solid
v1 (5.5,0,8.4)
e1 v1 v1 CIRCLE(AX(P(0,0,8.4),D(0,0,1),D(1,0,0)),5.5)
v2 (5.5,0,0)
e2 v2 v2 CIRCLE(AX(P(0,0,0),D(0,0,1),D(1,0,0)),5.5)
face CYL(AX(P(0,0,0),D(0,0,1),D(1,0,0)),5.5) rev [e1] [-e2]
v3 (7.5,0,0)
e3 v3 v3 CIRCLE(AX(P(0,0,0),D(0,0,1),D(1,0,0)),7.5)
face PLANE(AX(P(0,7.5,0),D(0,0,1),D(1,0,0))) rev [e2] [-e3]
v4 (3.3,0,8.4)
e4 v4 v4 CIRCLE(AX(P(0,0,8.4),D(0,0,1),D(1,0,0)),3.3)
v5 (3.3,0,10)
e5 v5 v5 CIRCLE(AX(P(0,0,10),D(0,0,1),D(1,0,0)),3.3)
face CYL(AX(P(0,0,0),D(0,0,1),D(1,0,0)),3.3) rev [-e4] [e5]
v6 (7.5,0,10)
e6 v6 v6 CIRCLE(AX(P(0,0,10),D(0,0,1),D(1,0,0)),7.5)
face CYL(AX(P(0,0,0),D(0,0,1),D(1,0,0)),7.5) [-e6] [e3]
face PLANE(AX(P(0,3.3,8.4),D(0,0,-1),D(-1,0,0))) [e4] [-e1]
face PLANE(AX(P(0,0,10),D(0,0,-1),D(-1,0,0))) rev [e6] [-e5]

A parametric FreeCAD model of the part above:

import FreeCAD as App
import Part
import Sketcher
Q = App.Units.Quantity


def add_polygon(sketch, points):
    """Adds a closed chain of lines whose ends are joined by coincident constraints."""
    first, n = sketch.GeometryCount, len(points)
    for a, b in zip(points, points[1:] + points[:1]):
        sketch.addGeometry(Part.LineSegment(App.Vector(*a, 0), App.Vector(*b, 0)), False)
    for i in range(n):
        sketch.addConstraint(Sketcher.Constraint("Coincident", first + i, 2, first + (i + 1) % n, 1))

doc = App.newDocument("Part")
body = doc.addObject("PartDesign::Body", "Body")

sketch1 = body.newObject("Sketcher::SketchObject", "Sketch")
sketch1.AttachmentSupport = (doc.getObject("YZ_Plane"), [""])
sketch1.MapMode = "FlatFace"
add_polygon(sketch1, [(8, 10), (0, 10), (0, 0), (8, 0)])
sketch1.addConstraint([
    Sketcher.Constraint("Horizontal", 0),
    Sketcher.Constraint("Vertical", 1),
    Sketcher.Constraint("Horizontal", 2),
    Sketcher.Constraint("Vertical", 3),
    Sketcher.Constraint("Coincident", 1, 2, -1, 1),
    Sketcher.Constraint("DistanceY", 1, 2, 1, 1, Q("10 mm")),
    Sketcher.Constraint("DistanceX", 0, 2, 0, 1, Q("7.5 mm")),
])
revolution = body.newObject("PartDesign::Revolution", "Revolution")
revolution.Profile = sketch1
revolution.ReferenceAxis = (sketch1, ["V_Axis"])
revolution.Angle = 360

sketch2 = body.newObject("Sketcher::SketchObject", "Sketch001")
sketch2.AttachmentSupport = (doc.getObject("YZ_Plane"), [""])
sketch2.MapMode = "FlatFace"
add_polygon(sketch2, [(3.3, 10), (0, 10), (0, 0), (5.5, 0), (5.5, 8.4), (3.3, 8.4)])
sketch2.addConstraint([
    Sketcher.Constraint("Horizontal", 0),
    Sketcher.Constraint("Vertical", 1),
    Sketcher.Constraint("Horizontal", 2),
    Sketcher.Constraint("Vertical", 3),
    Sketcher.Constraint("Horizontal", 4),
    Sketcher.Constraint("Vertical", 5),
    Sketcher.Constraint("Coincident", 1, 2, -1, 1),
    Sketcher.Constraint("DistanceY", 1, 2, 1, 1, Q("10 mm")),
    Sketcher.Constraint("DistanceX", 0, 2, 0, 1, Q("3.3 mm")),
    Sketcher.Constraint("DistanceX", 2, 1, 2, 2, Q("5.5 mm")),
    Sketcher.Constraint("DistanceY", 3, 1, 3, 2, Q("8.4 mm")),
])
groove = body.newObject("PartDesign::Groove", "Groove")
groove.Profile = sketch2
groove.ReferenceAxis = (sketch2, ["V_Axis"])
groove.Angle = 360
body2 = doc.addObject("PartDesign::Body", "Body001")

sketch3 = body2.newObject("Sketcher::SketchObject", "Sketch002")
sketch3.AttachmentSupport = (doc.getObject("YZ_Plane001"), [""])
sketch3.MapMode = "FlatFace"
sketch3.addGeometry(Part.Circle(App.Vector(0, 0, 0), App.Vector(0, 0, 1), 6), False)
sketch3.addConstraint([
    Sketcher.Constraint("Coincident", 0, 3, -1, 1),
    Sketcher.Constraint("Diameter", 0, Q("11.25 mm")),
])
pad1 = body2.newObject("PartDesign::Pad", "Pad")
pad1.Profile = sketch3
pad1.Length = 3.75
body2.Visibility = False

doc.recompute()
